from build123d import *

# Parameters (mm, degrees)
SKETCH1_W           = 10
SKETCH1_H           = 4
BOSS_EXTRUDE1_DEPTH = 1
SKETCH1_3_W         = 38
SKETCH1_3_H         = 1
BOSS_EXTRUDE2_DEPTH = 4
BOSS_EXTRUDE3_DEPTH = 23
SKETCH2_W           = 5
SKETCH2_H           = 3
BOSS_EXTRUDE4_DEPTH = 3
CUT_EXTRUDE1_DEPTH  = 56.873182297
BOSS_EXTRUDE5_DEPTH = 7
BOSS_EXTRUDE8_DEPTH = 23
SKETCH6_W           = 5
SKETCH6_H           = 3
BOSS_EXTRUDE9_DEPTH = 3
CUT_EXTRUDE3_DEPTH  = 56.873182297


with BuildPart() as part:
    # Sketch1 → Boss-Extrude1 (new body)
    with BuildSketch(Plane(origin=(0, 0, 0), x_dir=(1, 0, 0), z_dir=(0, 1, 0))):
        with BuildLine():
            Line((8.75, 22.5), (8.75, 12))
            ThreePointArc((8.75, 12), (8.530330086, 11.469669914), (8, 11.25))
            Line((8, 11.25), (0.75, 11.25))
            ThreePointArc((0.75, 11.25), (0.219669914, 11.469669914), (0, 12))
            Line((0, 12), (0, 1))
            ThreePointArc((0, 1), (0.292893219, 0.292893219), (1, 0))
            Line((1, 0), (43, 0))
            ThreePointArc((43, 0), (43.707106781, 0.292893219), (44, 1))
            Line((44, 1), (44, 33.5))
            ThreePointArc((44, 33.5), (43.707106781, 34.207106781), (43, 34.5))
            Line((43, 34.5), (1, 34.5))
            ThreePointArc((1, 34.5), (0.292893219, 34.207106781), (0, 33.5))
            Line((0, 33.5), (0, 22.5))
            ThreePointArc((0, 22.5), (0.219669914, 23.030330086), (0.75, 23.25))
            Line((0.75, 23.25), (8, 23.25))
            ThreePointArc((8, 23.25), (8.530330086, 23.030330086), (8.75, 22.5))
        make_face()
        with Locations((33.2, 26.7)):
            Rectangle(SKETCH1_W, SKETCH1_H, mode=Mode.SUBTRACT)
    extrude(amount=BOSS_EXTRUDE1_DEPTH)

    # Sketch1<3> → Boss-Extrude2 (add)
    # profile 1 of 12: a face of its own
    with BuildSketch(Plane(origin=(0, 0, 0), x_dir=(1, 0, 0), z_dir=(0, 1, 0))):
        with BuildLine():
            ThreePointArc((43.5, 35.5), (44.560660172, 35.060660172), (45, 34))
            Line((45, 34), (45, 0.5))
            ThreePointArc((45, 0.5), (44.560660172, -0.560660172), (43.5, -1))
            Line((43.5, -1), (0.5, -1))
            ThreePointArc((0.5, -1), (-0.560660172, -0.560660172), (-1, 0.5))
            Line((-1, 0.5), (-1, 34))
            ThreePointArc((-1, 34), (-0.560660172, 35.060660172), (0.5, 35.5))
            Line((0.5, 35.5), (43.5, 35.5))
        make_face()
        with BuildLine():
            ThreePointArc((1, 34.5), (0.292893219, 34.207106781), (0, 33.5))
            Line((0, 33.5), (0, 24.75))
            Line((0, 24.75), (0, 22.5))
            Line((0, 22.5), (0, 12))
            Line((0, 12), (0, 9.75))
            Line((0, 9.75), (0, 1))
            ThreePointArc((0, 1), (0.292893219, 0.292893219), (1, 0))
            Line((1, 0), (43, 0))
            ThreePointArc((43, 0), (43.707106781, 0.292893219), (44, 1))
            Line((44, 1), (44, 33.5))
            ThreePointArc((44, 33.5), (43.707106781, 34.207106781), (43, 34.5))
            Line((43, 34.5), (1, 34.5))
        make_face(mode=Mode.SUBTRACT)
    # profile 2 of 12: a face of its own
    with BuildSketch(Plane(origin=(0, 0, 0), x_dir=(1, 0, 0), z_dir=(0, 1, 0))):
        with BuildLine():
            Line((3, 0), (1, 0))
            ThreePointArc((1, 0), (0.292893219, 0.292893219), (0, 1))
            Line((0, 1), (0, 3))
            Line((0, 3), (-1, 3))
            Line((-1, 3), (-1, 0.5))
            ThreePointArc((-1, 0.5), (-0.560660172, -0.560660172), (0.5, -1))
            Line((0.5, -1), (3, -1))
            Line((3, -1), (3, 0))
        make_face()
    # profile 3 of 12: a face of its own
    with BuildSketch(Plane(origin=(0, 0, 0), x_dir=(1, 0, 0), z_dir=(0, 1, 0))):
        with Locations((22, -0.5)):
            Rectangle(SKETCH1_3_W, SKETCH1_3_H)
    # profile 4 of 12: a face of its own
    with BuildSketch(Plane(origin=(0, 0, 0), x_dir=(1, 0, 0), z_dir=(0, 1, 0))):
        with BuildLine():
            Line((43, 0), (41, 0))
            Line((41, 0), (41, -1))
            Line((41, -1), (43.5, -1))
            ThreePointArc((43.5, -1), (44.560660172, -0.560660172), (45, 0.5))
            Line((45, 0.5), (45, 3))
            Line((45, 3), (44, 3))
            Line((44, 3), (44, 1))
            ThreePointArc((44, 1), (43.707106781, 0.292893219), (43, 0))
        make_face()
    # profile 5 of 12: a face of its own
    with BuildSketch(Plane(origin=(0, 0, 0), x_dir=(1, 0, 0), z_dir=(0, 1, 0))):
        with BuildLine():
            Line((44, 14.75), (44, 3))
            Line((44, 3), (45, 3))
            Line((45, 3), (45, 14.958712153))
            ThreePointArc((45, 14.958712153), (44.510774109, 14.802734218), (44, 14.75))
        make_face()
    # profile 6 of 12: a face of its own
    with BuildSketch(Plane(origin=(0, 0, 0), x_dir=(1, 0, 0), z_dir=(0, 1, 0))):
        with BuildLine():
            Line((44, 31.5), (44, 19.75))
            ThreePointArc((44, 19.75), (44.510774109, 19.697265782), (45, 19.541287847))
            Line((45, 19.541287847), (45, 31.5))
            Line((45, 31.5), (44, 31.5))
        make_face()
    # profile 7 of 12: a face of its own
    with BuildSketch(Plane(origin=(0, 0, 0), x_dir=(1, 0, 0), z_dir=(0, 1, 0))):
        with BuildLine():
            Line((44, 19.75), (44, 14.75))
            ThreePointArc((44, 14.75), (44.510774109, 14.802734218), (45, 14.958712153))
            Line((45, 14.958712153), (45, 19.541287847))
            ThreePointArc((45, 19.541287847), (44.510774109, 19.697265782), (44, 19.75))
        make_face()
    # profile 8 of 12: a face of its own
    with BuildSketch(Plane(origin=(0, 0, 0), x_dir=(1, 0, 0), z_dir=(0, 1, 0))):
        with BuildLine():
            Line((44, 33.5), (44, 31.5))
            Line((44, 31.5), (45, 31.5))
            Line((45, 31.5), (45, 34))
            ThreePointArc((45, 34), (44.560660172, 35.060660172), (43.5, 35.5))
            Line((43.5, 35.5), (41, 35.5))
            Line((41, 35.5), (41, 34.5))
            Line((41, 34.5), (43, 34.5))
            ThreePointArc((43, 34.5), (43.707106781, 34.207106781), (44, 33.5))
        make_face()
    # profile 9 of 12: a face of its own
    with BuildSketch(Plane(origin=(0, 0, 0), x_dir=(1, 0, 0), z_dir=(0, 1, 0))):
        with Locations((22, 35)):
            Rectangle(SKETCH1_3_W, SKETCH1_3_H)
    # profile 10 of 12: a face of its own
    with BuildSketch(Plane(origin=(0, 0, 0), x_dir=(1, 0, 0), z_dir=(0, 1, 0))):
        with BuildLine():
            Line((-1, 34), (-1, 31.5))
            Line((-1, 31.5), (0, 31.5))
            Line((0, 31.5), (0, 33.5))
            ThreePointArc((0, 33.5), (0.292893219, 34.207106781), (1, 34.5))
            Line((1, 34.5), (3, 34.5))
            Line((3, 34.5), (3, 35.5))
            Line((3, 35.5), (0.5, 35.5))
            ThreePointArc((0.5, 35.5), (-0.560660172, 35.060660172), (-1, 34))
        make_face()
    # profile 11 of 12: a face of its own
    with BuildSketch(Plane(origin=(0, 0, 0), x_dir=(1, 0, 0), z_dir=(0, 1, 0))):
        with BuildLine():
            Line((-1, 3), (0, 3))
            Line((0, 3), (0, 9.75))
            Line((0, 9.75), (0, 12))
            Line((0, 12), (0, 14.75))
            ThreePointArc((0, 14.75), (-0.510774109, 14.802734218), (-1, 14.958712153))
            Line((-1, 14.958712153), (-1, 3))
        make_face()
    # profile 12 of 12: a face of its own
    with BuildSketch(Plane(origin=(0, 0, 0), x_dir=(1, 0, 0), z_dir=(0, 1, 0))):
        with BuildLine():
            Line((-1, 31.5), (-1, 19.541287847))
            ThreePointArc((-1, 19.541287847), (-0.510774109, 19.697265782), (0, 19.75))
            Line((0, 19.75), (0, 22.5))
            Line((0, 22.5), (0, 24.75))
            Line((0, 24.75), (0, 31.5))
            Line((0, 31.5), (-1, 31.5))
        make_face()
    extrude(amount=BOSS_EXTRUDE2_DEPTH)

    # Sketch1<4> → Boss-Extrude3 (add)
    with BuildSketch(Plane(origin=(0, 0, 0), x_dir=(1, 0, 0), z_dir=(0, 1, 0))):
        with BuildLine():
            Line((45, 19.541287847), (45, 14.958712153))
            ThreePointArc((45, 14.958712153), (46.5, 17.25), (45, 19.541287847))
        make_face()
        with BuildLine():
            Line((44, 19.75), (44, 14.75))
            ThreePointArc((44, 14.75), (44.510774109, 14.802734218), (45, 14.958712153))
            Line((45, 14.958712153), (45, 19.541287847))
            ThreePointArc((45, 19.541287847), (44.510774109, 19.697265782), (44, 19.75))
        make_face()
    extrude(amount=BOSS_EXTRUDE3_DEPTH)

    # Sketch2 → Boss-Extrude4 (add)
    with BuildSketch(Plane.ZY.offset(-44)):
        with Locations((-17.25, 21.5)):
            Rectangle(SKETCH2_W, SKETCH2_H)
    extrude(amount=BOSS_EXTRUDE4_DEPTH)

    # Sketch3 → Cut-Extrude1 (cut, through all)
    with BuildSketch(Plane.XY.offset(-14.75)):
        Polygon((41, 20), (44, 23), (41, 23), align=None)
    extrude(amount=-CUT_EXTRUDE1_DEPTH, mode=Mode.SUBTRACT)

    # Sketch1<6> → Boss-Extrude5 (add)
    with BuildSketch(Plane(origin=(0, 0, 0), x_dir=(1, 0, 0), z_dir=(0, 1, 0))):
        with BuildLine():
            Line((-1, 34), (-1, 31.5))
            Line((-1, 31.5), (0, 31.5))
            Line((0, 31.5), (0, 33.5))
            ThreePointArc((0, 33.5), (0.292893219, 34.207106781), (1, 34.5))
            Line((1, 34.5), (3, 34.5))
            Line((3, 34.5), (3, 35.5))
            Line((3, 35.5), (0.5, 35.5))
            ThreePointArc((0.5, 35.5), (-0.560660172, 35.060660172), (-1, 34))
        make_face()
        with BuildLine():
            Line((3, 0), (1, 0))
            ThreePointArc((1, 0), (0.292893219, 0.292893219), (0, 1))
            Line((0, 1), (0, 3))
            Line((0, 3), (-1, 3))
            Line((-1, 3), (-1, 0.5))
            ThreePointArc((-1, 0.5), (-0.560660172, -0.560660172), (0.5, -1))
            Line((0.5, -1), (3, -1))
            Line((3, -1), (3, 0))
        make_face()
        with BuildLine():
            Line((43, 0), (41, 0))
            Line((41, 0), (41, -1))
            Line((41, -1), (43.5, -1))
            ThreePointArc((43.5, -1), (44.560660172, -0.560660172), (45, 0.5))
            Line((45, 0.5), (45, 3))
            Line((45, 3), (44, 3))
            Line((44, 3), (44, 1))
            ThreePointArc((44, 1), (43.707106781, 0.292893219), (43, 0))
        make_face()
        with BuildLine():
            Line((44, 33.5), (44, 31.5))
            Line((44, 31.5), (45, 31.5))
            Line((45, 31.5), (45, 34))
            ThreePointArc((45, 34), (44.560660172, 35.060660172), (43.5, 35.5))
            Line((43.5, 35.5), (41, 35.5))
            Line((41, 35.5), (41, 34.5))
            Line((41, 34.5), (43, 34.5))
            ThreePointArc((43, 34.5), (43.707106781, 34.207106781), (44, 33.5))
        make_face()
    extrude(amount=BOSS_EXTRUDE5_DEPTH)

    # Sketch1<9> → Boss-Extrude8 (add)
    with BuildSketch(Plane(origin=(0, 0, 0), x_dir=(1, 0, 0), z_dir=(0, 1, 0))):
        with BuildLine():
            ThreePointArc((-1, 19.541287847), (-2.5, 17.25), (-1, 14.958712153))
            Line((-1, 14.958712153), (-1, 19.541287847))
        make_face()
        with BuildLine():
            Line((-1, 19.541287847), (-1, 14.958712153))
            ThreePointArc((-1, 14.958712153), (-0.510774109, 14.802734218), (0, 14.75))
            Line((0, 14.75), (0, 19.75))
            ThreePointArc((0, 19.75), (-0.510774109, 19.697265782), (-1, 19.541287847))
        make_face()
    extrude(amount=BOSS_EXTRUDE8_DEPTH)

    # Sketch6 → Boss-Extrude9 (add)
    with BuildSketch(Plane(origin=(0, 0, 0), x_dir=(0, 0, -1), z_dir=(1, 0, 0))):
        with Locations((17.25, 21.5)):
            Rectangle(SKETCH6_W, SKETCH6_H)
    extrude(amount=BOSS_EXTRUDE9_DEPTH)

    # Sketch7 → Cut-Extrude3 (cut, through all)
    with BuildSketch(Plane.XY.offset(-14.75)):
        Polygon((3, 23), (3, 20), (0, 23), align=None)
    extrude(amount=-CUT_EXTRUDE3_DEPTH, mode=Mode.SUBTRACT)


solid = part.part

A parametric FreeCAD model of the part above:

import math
import FreeCAD as App
import Part
import Sketcher
from FreeCAD import Vector
Q = App.Units.Quantity


def add_polygon(sketch, points):
    """Adds a closed chain of lines whose ends are joined by coincident constraints."""
    first, n = sketch.GeometryCount, len(points)
    for a, b in zip(points, points[1:] + points[:1]):
        sketch.addGeometry(Part.LineSegment(App.Vector(*a, 0), App.Vector(*b, 0)), False)
    for i in range(n):
        sketch.addConstraint(Sketcher.Constraint("Coincident", first + i, 2, first + (i + 1) % n, 1))

doc = App.newDocument("Part")
params = doc.addObject("Spreadsheet::Sheet", "Params")
for row, (alias, value) in enumerate([
    ("sketch1_radius", "1 mm"),
    ("sketch1_width", "42 mm"),
    ("sketch1_width2", "10 mm"),
    ("sketch1_height", "11 mm"),
    ("sketch1_height2", "4 mm"),
    ("pad1_length", "1 mm"),
    ("sketch2_radius", "1 mm"),
    ("sketch2_radius2", "1.5 mm"),
    ("sketch2_width", "43 mm"),
    ("sketch2_width2", "42 mm"),
    ("sketch2_height", "33.5 mm"),
    ("pad2_length", "4 mm"),
    ("sketch3_radius", "2.5 mm"),
    ("pad3_length", "23 mm"),
    ("sketch4_width", "3 mm"),
    ("sketch4_height", "5 mm"),
    ("pad4_length", "3 mm"),
    ("sketch5_width", "3 mm"),
    ("sketch6_radius", "1 mm"),
    ("sketch6_radius2", "1.5 mm"),
    ("sketch6_width", "1 mm"),
    ("sketch6_width2", "2 mm"),
    ("pad5_length", "7 mm"),
    ("sketch7_radius", "2.5 mm"),
    ("pad6_length", "23 mm"),
    ("sketch8_width", "3 mm"),
    ("sketch8_height", "5 mm"),
    ("pad7_length", "3 mm"),
    ("sketch9_width", "3 mm"),
], start=1):
    params.set(f"A{row}", alias)
    params.set(f"B{row}", "=" + value)
    params.setAlias(f"B{row}", alias)

body = doc.addObject("PartDesign::Body", "Body")

# Sketch on XZ plane
sketch1 = body.newObject("Sketcher::SketchObject", "Sketch")
sketch1.AttachmentSupport = (doc.getObject("XZ_Plane"), [""])
sketch1.MapMode = "FlatFace"
sketch1.addGeometry(Part.LineSegment(Vector(8.75, -22.5, 0), Vector(8.75, -12, 0)), False)  # 0
sketch1.addGeometry(Part.ArcOfCircle(Part.Circle(Vector(8, -12, 0), Vector(0, 0, 1), 0.75), math.radians(0), math.radians(90)), False)  # 1
sketch1.addGeometry(Part.LineSegment(Vector(8, -11.25, 0), Vector(0.75, -11.25, 0)), False)  # 2
sketch1.addGeometry(Part.ArcOfCircle(Part.Circle(Vector(0.75, -12, 0), Vector(0, 0, 1), 0.75), math.radians(90), math.radians(180)), False)  # 3
sketch1.addGeometry(Part.LineSegment(Vector(0, -12, 0), Vector(0, -1, 0)), False)  # 4
sketch1.addGeometry(Part.ArcOfCircle(Part.Circle(Vector(1, -1, 0), Vector(0, 0, 1), 1), math.radians(90), math.radians(180)), False)  # 5
sketch1.addGeometry(Part.LineSegment(Vector(1, 0, 0), Vector(43, 0, 0)), False)  # 6
sketch1.addGeometry(Part.ArcOfCircle(Part.Circle(Vector(43, -1, 0), Vector(0, 0, 1), 1), math.radians(0), math.radians(90)), False)  # 7
sketch1.addGeometry(Part.LineSegment(Vector(44, -1, 0), Vector(44, -33.5, 0)), False)  # 8
sketch1.addGeometry(Part.ArcOfCircle(Part.Circle(Vector(43, -33.5, 0), Vector(0, 0, 1), 1), math.radians(-90), math.radians(0)), False)  # 9
sketch1.addGeometry(Part.LineSegment(Vector(43, -34.5, 0), Vector(1, -34.5, 0)), False)  # 10
sketch1.addGeometry(Part.ArcOfCircle(Part.Circle(Vector(1, -33.5, 0), Vector(0, 0, 1), 1), math.radians(-180), math.radians(-90)), False)  # 11
sketch1.addGeometry(Part.LineSegment(Vector(0, -33.5, 0), Vector(0, -22.5, 0)), False)  # 12
sketch1.addGeometry(Part.ArcOfCircle(Part.Circle(Vector(0.75, -22.5, 0), Vector(0, 0, 1), 0.75), math.radians(180), math.radians(270)), False)  # 13
sketch1.addGeometry(Part.LineSegment(Vector(0.75, -23.25, 0), Vector(8, -23.25, 0)), False)  # 14
sketch1.addGeometry(Part.ArcOfCircle(Part.Circle(Vector(8, -22.5, 0), Vector(0, 0, 1), 0.75), math.radians(-90), math.radians(0)), False)  # 15
add_polygon(sketch1, [(38.2, -24.7), (28.2, -24.7), (28.2, -28.7), (38.2, -28.7)])  # lines 16-19
sketch1.addConstraint([
    Sketcher.Constraint("Tangent", 0, 2, 1, 1),
    Sketcher.Constraint("Tangent", 1, 2, 2, 1),
    Sketcher.Constraint("Tangent", 2, 2, 3, 1),
    Sketcher.Constraint("Tangent", 3, 2, 4, 1),
    Sketcher.Constraint("Tangent", 4, 2, 5, 2),
    Sketcher.Constraint("Tangent", 5, 1, 6, 1),
    Sketcher.Constraint("Tangent", 6, 2, 7, 2),
    Sketcher.Constraint("Tangent", 7, 1, 8, 1),
    Sketcher.Constraint("Tangent", 8, 2, 9, 2),
    Sketcher.Constraint("Tangent", 9, 1, 10, 1),
    Sketcher.Constraint("Tangent", 10, 2, 11, 2),
    Sketcher.Constraint("Tangent", 11, 1, 12, 1),
    Sketcher.Constraint("Tangent", 12, 2, 13, 1),
    Sketcher.Constraint("Tangent", 13, 2, 14, 1),
    Sketcher.Constraint("Tangent", 14, 2, 15, 1),
    Sketcher.Constraint("Tangent", 15, 2, 0, 1),
    Sketcher.Constraint("Vertical", 0),
    Sketcher.Constraint("Horizontal", 2),
    Sketcher.Constraint("Vertical", 4),
    Sketcher.Constraint("Horizontal", 6),
    Sketcher.Constraint("Vertical", 8),
    Sketcher.Constraint("Horizontal", 10),
    Sketcher.Constraint("Vertical", 12),
    Sketcher.Constraint("Horizontal", 14),
    Sketcher.Constraint("Horizontal", 16),
    Sketcher.Constraint("Vertical", 17),
    Sketcher.Constraint("Horizontal", 18),
    Sketcher.Constraint("Vertical", 19),
    Sketcher.Constraint("Equal", 1, 3),
    Sketcher.Constraint("Equal", 5, 7),
    Sketcher.Constraint("Equal", 7, 9),
    Sketcher.Constraint("Equal", 9, 11),
    Sketcher.Constraint("Equal", 3, 13),
    Sketcher.Constraint("Equal", 13, 15),
    Sketcher.Constraint("PointOnObject", 3, 2, -2),
    Sketcher.Constraint("PointOnObject", 5, 1, -1),
    Sketcher.Constraint("PointOnObject", 11, 1, -2),
    Sketcher.Constraint("Equal", 4, 12),
    Sketcher.Constraint("Radius", 5, Q("1 mm")),
    Sketcher.Constraint("DistanceX", 6, 1, 6, 2, Q("42 mm")),
    Sketcher.Constraint("DistanceX", 16, 2, 16, 1, Q("10 mm")),
    Sketcher.Constraint("DistanceY", 4, 1, 4, 2, Q("11 mm")),
    Sketcher.Constraint("DistanceY", 17, 2, 17, 1, Q("4 mm")),
    Sketcher.Constraint("Radius", 1, Q("0.75 mm")),
    Sketcher.Constraint("DistanceY", 0, 1, 0, 2, Q("10.5 mm")),
    Sketcher.Constraint("DistanceX", -1, 1, 1, 3, Q("8 mm")),
    Sketcher.Constraint("DistanceX", -1, 1, 16, 2, Q("28.2 mm")),
    Sketcher.Constraint("DistanceY", 16, 2, -1, 1, Q("24.7 mm")),
])
sketch1.setExpression("Constraints[42]", "Params.sketch1_radius")
sketch1.setExpression("Constraints[43]", "Params.sketch1_width")
sketch1.setExpression("Constraints[44]", "Params.sketch1_width2")
sketch1.setExpression("Constraints[45]", "Params.sketch1_height")
sketch1.setExpression("Constraints[46]", "Params.sketch1_height2")
pad1 = body.newObject("PartDesign::Pad", "Pad")
pad1.Profile = sketch1
pad1.setExpression("Length", "Params.pad1_length")
pad1.Reversed = True

# Sketch on XZ plane
sketch2 = body.newObject("Sketcher::SketchObject", "Sketch001")
sketch2.AttachmentSupport = (doc.getObject("XZ_Plane"), [""])
sketch2.MapMode = "FlatFace"
sketch2.addGeometry([
    Part.LineSegment(Vector(43.5, -35.5, 0), Vector(0.5, -35.5, 0)),  # 0
    Part.ArcOfCircle(Part.Circle(Vector(0.5, -34, 0), Vector(0, 0, 1), 1.5), math.radians(180), math.radians(270)),  # 1
    Part.LineSegment(Vector(-1, -34, 0), Vector(-1, -0.5, 0)),  # 2
    Part.ArcOfCircle(Part.Circle(Vector(0.5, -0.5, 0), Vector(0, 0, 1), 1.5), math.radians(90), math.radians(180)),  # 3
    Part.LineSegment(Vector(0.5, 1, 0), Vector(43.5, 1, 0)),  # 4
    Part.ArcOfCircle(Part.Circle(Vector(43.5, -0.5, 0), Vector(0, 0, 1), 1.5), math.radians(0), math.radians(90)),  # 5
    Part.LineSegment(Vector(45, -0.5, 0), Vector(45, -34, 0)),  # 6
    Part.ArcOfCircle(Part.Circle(Vector(43.5, -34, 0), Vector(0, 0, 1), 1.5), math.radians(-90), math.radians(0)),  # 7
    Part.LineSegment(Vector(1, -34.5, 0), Vector(43, -34.5, 0)),  # 8
    Part.ArcOfCircle(Part.Circle(Vector(43, -33.5, 0), Vector(0, 0, 1), 1), math.radians(-90), math.radians(0)),  # 9
    Part.LineSegment(Vector(44, -33.5, 0), Vector(44, -1, 0)),  # 10
    Part.ArcOfCircle(Part.Circle(Vector(43, -1, 0), Vector(0, 0, 1), 1), math.radians(0), math.radians(90)),  # 11
    Part.LineSegment(Vector(43, 0, 0), Vector(1, 0, 0)),  # 12
    Part.ArcOfCircle(Part.Circle(Vector(1, -1, 0), Vector(0, 0, 1), 1), math.radians(90), math.radians(180)),  # 13
    Part.LineSegment(Vector(0, -1, 0), Vector(0, -33.5, 0)),  # 14
    Part.ArcOfCircle(Part.Circle(Vector(1, -33.5, 0), Vector(0, 0, 1), 1), math.radians(-180), math.radians(-90)),  # 15
], False)
sketch2.addConstraint([
    Sketcher.Constraint("Tangent", 0, 2, 1, 2),
    Sketcher.Constraint("Tangent", 1, 1, 2, 1),
    Sketcher.Constraint("Tangent", 2, 2, 3, 2),
    Sketcher.Constraint("Tangent", 3, 1, 4, 1),
    Sketcher.Constraint("Tangent", 4, 2, 5, 2),
    Sketcher.Constraint("Tangent", 5, 1, 6, 1),
    Sketcher.Constraint("Tangent", 6, 2, 7, 2),
    Sketcher.Constraint("Tangent", 7, 1, 0, 1),
    Sketcher.Constraint("Tangent", 8, 2, 9, 1),
    Sketcher.Constraint("Tangent", 9, 2, 10, 1),
    Sketcher.Constraint("Tangent", 10, 2, 11, 1),
    Sketcher.Constraint("Tangent", 11, 2, 12, 1),
    Sketcher.Constraint("Tangent", 12, 2, 13, 1),
    Sketcher.Constraint("Tangent", 13, 2, 14, 1),
    Sketcher.Constraint("Tangent", 14, 2, 15, 1),
    Sketcher.Constraint("Tangent", 15, 2, 8, 1),
    Sketcher.Constraint("Horizontal", 0),
    Sketcher.Constraint("Vertical", 2),
    Sketcher.Constraint("Horizontal", 4),
    Sketcher.Constraint("Vertical", 6),
    Sketcher.Constraint("Horizontal", 8),
    Sketcher.Constraint("Vertical", 10),
    Sketcher.Constraint("Horizontal", 12),
    Sketcher.Constraint("Vertical", 14),
    Sketcher.Constraint("Equal", 1, 3),
    Sketcher.Constraint("Equal", 3, 5),
    Sketcher.Constraint("Equal", 5, 7),
    Sketcher.Constraint("Equal", 9, 11),
    Sketcher.Constraint("Equal", 11, 13),
    Sketcher.Constraint("Equal", 13, 15),
    Sketcher.Constraint("PointOnObject", 11, 2, -1),
    Sketcher.Constraint("PointOnObject", 13, 2, -2),
    Sketcher.Constraint("Radius", 9, Q("1 mm")),
    Sketcher.Constraint("Radius", 1, Q("1.5 mm")),
    Sketcher.Constraint("DistanceX", 0, 2, 0, 1, Q("43 mm")),
    Sketcher.Constraint("DistanceX", 8, 1, 8, 2, Q("42 mm")),
    Sketcher.Constraint("DistanceY", 2, 1, 2, 2, Q("33.5 mm")),
    Sketcher.Constraint("DistanceY", 10, 1, 10, 2, Q("32.5 mm")),
    Sketcher.Constraint("DistanceY", 1, 3, -1, 1, Q("34 mm")),
    Sketcher.Constraint("DistanceX", 1, 1, -1, 1, Q("1 mm")),
])
sketch2.setExpression("Constraints[32]", "Params.sketch2_radius")
sketch2.setExpression("Constraints[33]", "Params.sketch2_radius2")
sketch2.setExpression("Constraints[34]", "Params.sketch2_width")
sketch2.setExpression("Constraints[35]", "Params.sketch2_width2")
sketch2.setExpression("Constraints[36]", "Params.sketch2_height")
pad2 = body.newObject("PartDesign::Pad", "Pad001")
pad2.Profile = sketch2
pad2.setExpression("Length", "Params.pad2_length")
pad2.Reversed = True

# Sketch on XZ plane
sketch3 = body.newObject("Sketcher::SketchObject", "Sketch002")
sketch3.AttachmentSupport = (doc.getObject("XZ_Plane"), [""])
sketch3.MapMode = "FlatFace"
sketch3.addGeometry([
    Part.ArcOfCircle(Part.Circle(Vector(44, -17.25, 0), Vector(0, 0, 1), 2.5), math.radians(-66.421822), math.radians(66.421822)),
    Part.ArcOfCircle(Part.Circle(Vector(44, -17.25, 0), Vector(0, 0, 1), 2.5), math.radians(-90), math.radians(-66.421822)),
    Part.LineSegment(Vector(44, -19.75, 0), Vector(44, -14.75, 0)),
    Part.ArcOfCircle(Part.Circle(Vector(44, -17.25, 0), Vector(0, 0, 1), 2.5), math.radians(66.421822), math.radians(90)),
], False)
sketch3.addConstraint([
    Sketcher.Constraint("Tangent", 0, 1, 1, 2),
    Sketcher.Constraint("Coincident", 1, 1, 2, 1),
    Sketcher.Constraint("Coincident", 2, 2, 3, 2),
    Sketcher.Constraint("Tangent", 3, 1, 0, 2),
    Sketcher.Constraint("Vertical", 2),
    Sketcher.Constraint("Equal", 0, 1),
    Sketcher.Constraint("Equal", 1, 3),
    Sketcher.Constraint("Vertical", 3, 3, 1, 1),
    Sketcher.Constraint("Vertical", 0, 1, 3, 1),
    Sketcher.Constraint("Radius", 0, Q("2.5 mm")),
    Sketcher.Constraint("DistanceX", -1, 1, 0, 3, Q("44 mm")),
    Sketcher.Constraint("DistanceX", -1, 1, 0, 1, Q("45 mm")),
    Sketcher.Constraint("DistanceY", 0, 3, -1, 1, Q("17.25 mm")),
])
sketch3.setExpression("Constraints[9]", "Params.sketch3_radius")
pad3 = body.newObject("PartDesign::Pad", "Pad002")
pad3.Profile = sketch3
pad3.setExpression("Length", "Params.pad3_length")
pad3.Reversed = True

# Sketch on YZ plane
sketch4 = body.newObject("Sketcher::SketchObject", "Sketch003")
sketch4.AttachmentSupport = (doc.getObject("YZ_Plane"), [""])
sketch4.MapMode = "FlatFace"
sketch4.AttachmentOffset = App.Placement(Vector(0, 0, 44), App.Rotation())
add_polygon(sketch4, [(23, -19.75), (20, -19.75), (20, -14.75), (23, -14.75)])  # lines 0-3
sketch4.addConstraint([
    Sketcher.Constraint("Horizontal", 0),
    Sketcher.Constraint("Vertical", 1),
    Sketcher.Constraint("Horizontal", 2),
    Sketcher.Constraint("Vertical", 3),
    Sketcher.Constraint("DistanceX", 0, 2, 0, 1, Q("3 mm")),
    Sketcher.Constraint("DistanceY", 1, 1, 1, 2, Q("5 mm")),
    Sketcher.Constraint("DistanceX", -1, 1, 0, 2, Q("20 mm")),
    Sketcher.Constraint("DistanceY", 0, 2, -1, 1, Q("19.75 mm")),
])
sketch4.setExpression("Constraints[8]", "Params.sketch4_width")
sketch4.setExpression("Constraints[9]", "Params.sketch4_height")
pad4 = body.newObject("PartDesign::Pad", "Pad003")
pad4.Profile = sketch4
pad4.setExpression("Length", "Params.pad4_length")
pad4.Reversed = True

# Sketch on XY plane
sketch5 = body.newObject("Sketcher::SketchObject", "Sketch004")
sketch5.AttachmentSupport = (doc.getObject("XY_Plane"), [""])
sketch5.MapMode = "FlatFace"
sketch5.AttachmentOffset = App.Placement(Vector(0, 0, -14.75), App.Rotation())
add_polygon(sketch5, [(41, 20), (44, 23), (41, 23)])  # lines 0-2
sketch5.addConstraint([
    Sketcher.Constraint("Horizontal", 1),
    Sketcher.Constraint("Vertical", 2),
    Sketcher.Constraint("Equal", 1, 2),
    Sketcher.Constraint("DistanceX", 1, 2, 1, 1, Q("3 mm")),
    Sketcher.Constraint("DistanceX", -1, 1, 0, 2, Q("44 mm")),
    Sketcher.Constraint("DistanceY", -1, 1, 0, 2, Q("23 mm")),
])
sketch5.setExpression("Constraints[6]", "Params.sketch5_width")
pocket1 = body.newObject("PartDesign::Pocket", "Pocket")
pocket1.Profile = sketch5
pocket1.Type = "ThroughAll"

# Sketch on XZ plane
sketch6 = body.newObject("Sketcher::SketchObject", "Sketch005")
sketch6.AttachmentSupport = (doc.getObject("XZ_Plane"), [""])
sketch6.MapMode = "FlatFace"
sketch6.addGeometry([
    Part.LineSegment(Vector(-1, -34, 0), Vector(-1, -31.5, 0)),  # 0
    Part.LineSegment(Vector(-1, -31.5, 0), Vector(0, -31.5, 0)),  # 1
    Part.LineSegment(Vector(0, -31.5, 0), Vector(0, -33.5, 0)),  # 2
    Part.ArcOfCircle(Part.Circle(Vector(1, -33.5, 0), Vector(0, 0, 1), 1), math.radians(-180), math.radians(-90)),  # 3
    Part.LineSegment(Vector(1, -34.5, 0), Vector(3, -34.5, 0)),  # 4
    Part.LineSegment(Vector(3, -34.5, 0), Vector(3, -35.5, 0)),  # 5
    Part.LineSegment(Vector(3, -35.5, 0), Vector(0.5, -35.5, 0)),  # 6
    Part.ArcOfCircle(Part.Circle(Vector(0.5, -34, 0), Vector(0, 0, 1), 1.5), math.radians(180), math.radians(270)),  # 7
    Part.LineSegment(Vector(3, 0, 0), Vector(1, 0, 0)),  # 8
    Part.ArcOfCircle(Part.Circle(Vector(1, -1, 0), Vector(0, 0, 1), 1), math.radians(90), math.radians(180)),  # 9
    Part.LineSegment(Vector(0, -1, 0), Vector(0, -3, 0)),  # 10
    Part.LineSegment(Vector(0, -3, 0), Vector(-1, -3, 0)),  # 11
    Part.LineSegment(Vector(-1, -3, 0), Vector(-1, -0.5, 0)),  # 12
    Part.ArcOfCircle(Part.Circle(Vector(0.5, -0.5, 0), Vector(0, 0, 1), 1.5), math.radians(90), math.radians(180)),  # 13
    Part.LineSegment(Vector(0.5, 1, 0), Vector(3, 1, 0)),  # 14
    Part.LineSegment(Vector(3, 1, 0), Vector(3, 0, 0)),  # 15
    Part.LineSegment(Vector(43, 0, 0), Vector(41, 0, 0)),  # 16
    Part.LineSegment(Vector(41, 0, 0), Vector(41, 1, 0)),  # 17
    Part.LineSegment(Vector(41, 1, 0), Vector(43.5, 1, 0)),  # 18
    Part.ArcOfCircle(Part.Circle(Vector(43.5, -0.5, 0), Vector(0, 0, 1), 1.5), math.radians(0), math.radians(90)),  # 19
    Part.LineSegment(Vector(45, -0.5, 0), Vector(45, -3, 0)),  # 20
    Part.LineSegment(Vector(45, -3, 0), Vector(44, -3, 0)),  # 21
    Part.LineSegment(Vector(44, -3, 0), Vector(44, -1, 0)),  # 22
    Part.ArcOfCircle(Part.Circle(Vector(43, -1, 0), Vector(0, 0, 1), 1), math.radians(0), math.radians(90)),  # 23
    Part.LineSegment(Vector(44, -33.5, 0), Vector(44, -31.5, 0)),  # 24
    Part.LineSegment(Vector(44, -31.5, 0), Vector(45, -31.5, 0)),  # 25
    Part.LineSegment(Vector(45, -31.5, 0), Vector(45, -34, 0)),  # 26
    Part.ArcOfCircle(Part.Circle(Vector(43.5, -34, 0), Vector(0, 0, 1), 1.5), math.radians(-90), math.radians(0)),  # 27
    Part.LineSegment(Vector(43.5, -35.5, 0), Vector(41, -35.5, 0)),  # 28
    Part.LineSegment(Vector(41, -35.5, 0), Vector(41, -34.5, 0)),  # 29
    Part.LineSegment(Vector(41, -34.5, 0), Vector(43, -34.5, 0)),  # 30
    Part.ArcOfCircle(Part.Circle(Vector(43, -33.5, 0), Vector(0, 0, 1), 1), math.radians(-90), math.radians(0)),  # 31
], False)
sketch6.addConstraint([
    Sketcher.Constraint("Coincident", 0, 2, 1, 1),
    Sketcher.Constraint("Coincident", 1, 2, 2, 1),
    Sketcher.Constraint("Tangent", 2, 2, 3, 1),
    Sketcher.Constraint("Tangent", 3, 2, 4, 1),
    Sketcher.Constraint("Coincident", 4, 2, 5, 1),
    Sketcher.Constraint("Coincident", 5, 2, 6, 1),
    Sketcher.Constraint("Tangent", 6, 2, 7, 2),
    Sketcher.Constraint("Tangent", 7, 1, 0, 1),
    Sketcher.Constraint("Tangent", 8, 2, 9, 1),
    Sketcher.Constraint("Tangent", 9, 2, 10, 1),
    Sketcher.Constraint("Coincident", 10, 2, 11, 1),
    Sketcher.Constraint("Coincident", 11, 2, 12, 1),
    Sketcher.Constraint("Tangent", 12, 2, 13, 2),
    Sketcher.Constraint("Tangent", 13, 1, 14, 1),
    Sketcher.Constraint("Coincident", 14, 2, 15, 1),
    Sketcher.Constraint("Coincident", 15, 2, 8, 1),
    Sketcher.Constraint("Coincident", 16, 2, 17, 1),
    Sketcher.Constraint("Coincident", 17, 2, 18, 1),
    Sketcher.Constraint("Tangent", 18, 2, 19, 2),
    Sketcher.Constraint("Tangent", 19, 1, 20, 1),
    Sketcher.Constraint("Coincident", 20, 2, 21, 1),
    Sketcher.Constraint("Coincident", 21, 2, 22, 1),
    Sketcher.Constraint("Tangent", 22, 2, 23, 1),
    Sketcher.Constraint("Tangent", 23, 2, 16, 1),
    Sketcher.Constraint("Coincident", 24, 2, 25, 1),
    Sketcher.Constraint("Coincident", 25, 2, 26, 1),
    Sketcher.Constraint("Tangent", 26, 2, 27, 2),
    Sketcher.Constraint("Tangent", 27, 1, 28, 1),
    Sketcher.Constraint("Coincident", 28, 2, 29, 1),
    Sketcher.Constraint("Coincident", 29, 2, 30, 1),
    Sketcher.Constraint("Tangent", 30, 2, 31, 1),
    Sketcher.Constraint("Tangent", 31, 2, 24, 1),
    Sketcher.Constraint("Vertical", 0),
    Sketcher.Constraint("Horizontal", 1),
    Sketcher.Constraint("Vertical", 2),
    Sketcher.Constraint("Horizontal", 4),
    Sketcher.Constraint("Vertical", 5),
    Sketcher.Constraint("Horizontal", 6),
    Sketcher.Constraint("Horizontal", 8),
    Sketcher.Constraint("Vertical", 10),
    Sketcher.Constraint("Horizontal", 11),
    Sketcher.Constraint("Vertical", 12),
    Sketcher.Constraint("Horizontal", 14),
    Sketcher.Constraint("Vertical", 15),
    Sketcher.Constraint("Horizontal", 16),
    Sketcher.Constraint("Vertical", 17),
    Sketcher.Constraint("Horizontal", 18),
    Sketcher.Constraint("Vertical", 20),
    Sketcher.Constraint("Horizontal", 21),
    Sketcher.Constraint("Vertical", 22),
    Sketcher.Constraint("Vertical", 24),
    Sketcher.Constraint("Horizontal", 25),
    Sketcher.Constraint("Vertical", 26),
    Sketcher.Constraint("Horizontal", 28),
    Sketcher.Constraint("Vertical", 29),
    Sketcher.Constraint("Horizontal", 30),
    Sketcher.Constraint("Equal", 3, 9),
    Sketcher.Constraint("Equal", 7, 13),
    Sketcher.Constraint("Equal", 13, 19),
    Sketcher.Constraint("Equal", 9, 23),
    Sketcher.Constraint("Equal", 19, 27),
    Sketcher.Constraint("Equal", 23, 31),
    Sketcher.Constraint("PointOnObject", 1, 2, -2),
    Sketcher.Constraint("PointOnObject", 8, 2, -1),
    Sketcher.Constraint("PointOnObject", 9, 2, -2),
    Sketcher.Constraint("PointOnObject", 16, 2, -1),
    Sketcher.Constraint("Horizontal", 13, 3, 19, 3),
    Sketcher.Constraint("Horizontal", 7, 3, 27, 3),
    Sketcher.Constraint("Horizontal", 3, 3, 31, 3),
    Sketcher.Constraint("Horizontal", 11, 2, 20, 2),
    Sketcher.Constraint("Horizontal", 1, 2, 24, 2),
    Sketcher.Constraint("Vertical", 7, 3, 13, 3),
    Sketcher.Constraint("Vertical", 19, 3, 27, 3),
    Sketcher.Constraint("Vertical", 23, 3, 31, 3),
    Sketcher.Constraint("Vertical", 5, 2, 14, 2),
    Sketcher.Constraint("Vertical", 17, 2, 28, 2),
    Sketcher.Constraint("Equal", 8, 16),
    Sketcher.Constraint("Equal", 14, 18),
    Sketcher.Constraint("Equal", 28, 0),
    Sketcher.Constraint("Equal", 30, 2),
    Sketcher.Constraint("Equal", 2, 10),
    Sketcher.Constraint("Equal", 0, 12),
    Sketcher.Constraint("Radius", 3, Q("1 mm")),
    Sketcher.Constraint("Radius", 7, Q("1.5 mm")),
    Sketcher.Constraint("DistanceX", 1, 1, 1, 2, Q("1 mm")),
    Sketcher.Constraint("DistanceX", 4, 1, 4, 2, Q("2 mm")),
    Sketcher.Constraint("DistanceY", 7, 3, -1, 1, Q("34 mm")),
    Sketcher.Constraint("DistanceX", -1, 1, 23, 3, Q("43 mm")),
])
sketch6.setExpression("Constraints[82]", "Params.sketch6_radius")
sketch6.setExpression("Constraints[83]", "Params.sketch6_radius2")
sketch6.setExpression("Constraints[84]", "Params.sketch6_width")
sketch6.setExpression("Constraints[85]", "Params.sketch6_width2")
pad5 = body.newObject("PartDesign::Pad", "Pad004")
pad5.Profile = sketch6
pad5.setExpression("Length", "Params.pad5_length")
pad5.Reversed = True

# Sketch on XZ plane
sketch7 = body.newObject("Sketcher::SketchObject", "Sketch006")
sketch7.AttachmentSupport = (doc.getObject("XZ_Plane"), [""])
sketch7.MapMode = "FlatFace"
sketch7.addGeometry([
    Part.ArcOfCircle(Part.Circle(Vector(0, -17.25, 0), Vector(0, 0, 1), 2.5), math.radians(113.578178), math.radians(246.421822)),
    Part.ArcOfCircle(Part.Circle(Vector(0, -17.25, 0), Vector(0, 0, 1), 2.5), math.radians(90), math.radians(113.578178)),
    Part.LineSegment(Vector(0, -14.75, 0), Vector(0, -19.75, 0)),
    Part.ArcOfCircle(Part.Circle(Vector(0, -17.25, 0), Vector(0, 0, 1), 2.5), math.radians(-113.578178), math.radians(-90)),
], False)
sketch7.addConstraint([
    Sketcher.Constraint("Tangent", 0, 1, 1, 2),
    Sketcher.Constraint("Coincident", 1, 1, 2, 1),
    Sketcher.Constraint("Coincident", 2, 2, 3, 2),
    Sketcher.Constraint("Tangent", 3, 1, 0, 2),
    Sketcher.Constraint("Vertical", 2),
    Sketcher.Constraint("Equal", 0, 1),
    Sketcher.Constraint("Equal", 1, 3),
    Sketcher.Constraint("PointOnObject", 0, 3, -2),
    Sketcher.Constraint("PointOnObject", 1, 1, -2),
    Sketcher.Constraint("Vertical", 0, 1, 3, 1),
    Sketcher.Constraint("Radius", 0, Q("2.5 mm")),
    Sketcher.Constraint("DistanceX", 0, 1, -1, 1, Q("1 mm")),
    Sketcher.Constraint("DistanceY", 0, 3, -1, 1, Q("17.25 mm")),
])
sketch7.setExpression("Constraints[10]", "Params.sketch7_radius")
pad6 = body.newObject("PartDesign::Pad", "Pad005")
pad6.Profile = sketch7
pad6.setExpression("Length", "Params.pad6_length")
pad6.Reversed = True

# Sketch on YZ plane
sketch8 = body.newObject("Sketcher::SketchObject", "Sketch007")
sketch8.AttachmentSupport = (doc.getObject("YZ_Plane"), [""])
sketch8.MapMode = "FlatFace"
add_polygon(sketch8, [(23, -14.75), (20, -14.75), (20, -19.75), (23, -19.75)])  # lines 0-3
sketch8.addConstraint([
    Sketcher.Constraint("Horizontal", 0),
    Sketcher.Constraint("Vertical", 1),
    Sketcher.Constraint("Horizontal", 2),
    Sketcher.Constraint("Vertical", 3),
    Sketcher.Constraint("DistanceX", 0, 2, 0, 1, Q("3 mm")),
    Sketcher.Constraint("DistanceY", 1, 2, 1, 1, Q("5 mm")),
    Sketcher.Constraint("DistanceX", -1, 1, 0, 2, Q("20 mm")),
    Sketcher.Constraint("DistanceY", 0, 2, -1, 1, Q("14.75 mm")),
])
sketch8.setExpression("Constraints[8]", "Params.sketch8_width")
sketch8.setExpression("Constraints[9]", "Params.sketch8_height")
pad7 = body.newObject("PartDesign::Pad", "Pad006")
pad7.Profile = sketch8
pad7.setExpression("Length", "Params.pad7_length")

# Sketch on XY plane
sketch9 = body.newObject("Sketcher::SketchObject", "Sketch008")
sketch9.AttachmentSupport = (doc.getObject("XY_Plane"), [""])
sketch9.MapMode = "FlatFace"
sketch9.AttachmentOffset = App.Placement(Vector(0, 0, -14.75), App.Rotation())
add_polygon(sketch9, [(3, 20), (3, 23), (0, 23)])  # lines 0-2
sketch9.addConstraint([
    Sketcher.Constraint("Vertical", 0),
    Sketcher.Constraint("Horizontal", 1),
    Sketcher.Constraint("PointOnObject", 1, 2, -2),
    Sketcher.Constraint("Equal", 1, 0),
    Sketcher.Constraint("DistanceX", 1, 2, 1, 1, Q("3 mm")),
    Sketcher.Constraint("DistanceY", -1, 1, 0, 2, Q("23 mm")),
])
sketch9.setExpression("Constraints[7]", "Params.sketch9_width")
pocket2 = body.newObject("PartDesign::Pocket", "Pocket001")
pocket2.Profile = sketch9
pocket2.Type = "ThroughAll"

doc.recompute()
